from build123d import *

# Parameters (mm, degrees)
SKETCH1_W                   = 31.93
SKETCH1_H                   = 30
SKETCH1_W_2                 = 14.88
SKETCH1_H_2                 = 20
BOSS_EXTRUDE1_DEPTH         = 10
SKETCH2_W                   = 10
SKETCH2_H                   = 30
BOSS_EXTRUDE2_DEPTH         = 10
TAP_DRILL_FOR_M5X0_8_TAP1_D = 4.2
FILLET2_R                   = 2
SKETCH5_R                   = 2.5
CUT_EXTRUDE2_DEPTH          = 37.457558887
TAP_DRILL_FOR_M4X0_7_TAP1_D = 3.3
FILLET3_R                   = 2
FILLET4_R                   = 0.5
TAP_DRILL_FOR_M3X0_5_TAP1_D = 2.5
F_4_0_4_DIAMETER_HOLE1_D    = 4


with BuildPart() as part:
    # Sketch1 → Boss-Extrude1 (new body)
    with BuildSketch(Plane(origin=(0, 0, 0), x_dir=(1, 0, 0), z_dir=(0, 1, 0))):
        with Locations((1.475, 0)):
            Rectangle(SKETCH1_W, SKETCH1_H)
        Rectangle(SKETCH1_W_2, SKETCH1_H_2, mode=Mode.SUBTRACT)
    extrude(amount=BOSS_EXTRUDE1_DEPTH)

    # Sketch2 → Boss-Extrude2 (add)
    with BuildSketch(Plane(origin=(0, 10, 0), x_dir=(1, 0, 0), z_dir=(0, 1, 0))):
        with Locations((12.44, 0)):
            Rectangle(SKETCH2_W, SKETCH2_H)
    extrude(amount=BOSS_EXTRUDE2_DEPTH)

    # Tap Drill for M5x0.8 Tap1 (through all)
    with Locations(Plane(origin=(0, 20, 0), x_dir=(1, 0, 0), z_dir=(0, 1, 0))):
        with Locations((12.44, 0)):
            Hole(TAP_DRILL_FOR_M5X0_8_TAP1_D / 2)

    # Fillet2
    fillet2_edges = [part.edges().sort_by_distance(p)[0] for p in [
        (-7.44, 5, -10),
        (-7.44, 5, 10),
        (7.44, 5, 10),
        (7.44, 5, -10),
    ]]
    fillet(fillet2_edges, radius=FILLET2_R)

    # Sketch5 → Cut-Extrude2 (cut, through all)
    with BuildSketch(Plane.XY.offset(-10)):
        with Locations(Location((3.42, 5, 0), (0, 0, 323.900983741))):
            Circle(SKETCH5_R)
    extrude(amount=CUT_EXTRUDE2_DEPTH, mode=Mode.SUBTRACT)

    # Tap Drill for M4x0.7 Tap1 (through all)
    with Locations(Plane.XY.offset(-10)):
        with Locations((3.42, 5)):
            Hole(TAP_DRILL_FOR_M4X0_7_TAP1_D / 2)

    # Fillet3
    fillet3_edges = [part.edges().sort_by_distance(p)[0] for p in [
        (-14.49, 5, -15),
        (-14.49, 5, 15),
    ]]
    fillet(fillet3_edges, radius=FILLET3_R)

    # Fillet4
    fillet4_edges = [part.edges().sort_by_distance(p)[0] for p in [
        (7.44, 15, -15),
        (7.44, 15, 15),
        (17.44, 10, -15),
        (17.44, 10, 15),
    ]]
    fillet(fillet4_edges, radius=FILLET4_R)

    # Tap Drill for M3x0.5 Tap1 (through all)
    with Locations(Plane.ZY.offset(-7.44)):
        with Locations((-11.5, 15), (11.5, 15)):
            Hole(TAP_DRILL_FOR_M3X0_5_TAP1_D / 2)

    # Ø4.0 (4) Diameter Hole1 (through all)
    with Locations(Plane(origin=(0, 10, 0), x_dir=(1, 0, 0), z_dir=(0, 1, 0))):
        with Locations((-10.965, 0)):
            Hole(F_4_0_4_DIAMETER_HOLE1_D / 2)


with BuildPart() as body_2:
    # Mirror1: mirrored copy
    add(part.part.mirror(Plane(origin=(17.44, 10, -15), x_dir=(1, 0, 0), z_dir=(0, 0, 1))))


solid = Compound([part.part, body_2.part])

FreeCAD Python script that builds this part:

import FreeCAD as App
import Part
import Sketcher
from FreeCAD import Vector
Q = App.Units.Quantity


def edges_at(feature, points):
    """Names of the edges that pass closest to the given points."""
    edges = feature.Shape.Edges
    near = lambda p: min(range(len(edges)), key=lambda i: edges[i].distToShape(Part.Vertex(*p))[0])
    return sorted({f"Edge{near(p) + 1}" for p in points})

doc = App.newDocument("Part")
body = doc.addObject("PartDesign::Body", "Body")

# Sketch on XZ plane
sketch1 = body.newObject("Sketcher::SketchObject", "Sketch")
sketch1.AttachmentSupport = (doc.getObject("XZ_Plane"), [""])
sketch1.MapMode = "FlatFace"
sketch1.addGeometry([
    Part.LineSegment(Vector(-14.49, -15, 0), Vector(-14.49, 15, 0)),  # 0
    Part.LineSegment(Vector(-14.49, 15, 0), Vector(17.44, 15, 0)),  # 1
    Part.LineSegment(Vector(17.44, 15, 0), Vector(17.44, -15, 0)),  # 2
    Part.LineSegment(Vector(17.44, -15, 0), Vector(-14.49, -15, 0)),  # 3
    Part.LineSegment(Vector(7.44, 10, 0), Vector(-7.44, 10, 0)),  # 4
    Part.LineSegment(Vector(-7.44, 10, 0), Vector(-7.44, -10, 0)),  # 5
    Part.LineSegment(Vector(-7.44, -10, 0), Vector(7.44, -10, 0)),  # 6
    Part.LineSegment(Vector(7.44, -10, 0), Vector(7.44, 10, 0)),  # 7
], False)
sketch1.addConstraint([
    Sketcher.Constraint("Coincident", 0, 2, 1, 1),
    Sketcher.Constraint("Coincident", 1, 2, 2, 1),
    Sketcher.Constraint("Coincident", 2, 2, 3, 1),
    Sketcher.Constraint("Coincident", 3, 2, 0, 1),
    Sketcher.Constraint("Coincident", 4, 2, 5, 1),
    Sketcher.Constraint("Coincident", 5, 2, 6, 1),
    Sketcher.Constraint("Coincident", 6, 2, 7, 1),
    Sketcher.Constraint("Coincident", 7, 2, 4, 1),
    Sketcher.Constraint("Vertical", 0),
    Sketcher.Constraint("Horizontal", 1),
    Sketcher.Constraint("Vertical", 2),
    Sketcher.Constraint("Horizontal", 3),
    Sketcher.Constraint("Horizontal", 4),
    Sketcher.Constraint("Vertical", 5),
    Sketcher.Constraint("Horizontal", 6),
    Sketcher.Constraint("Vertical", 7),
    Sketcher.Constraint("Symmetric", 4, 2, 6, 2, -1, 1),
    Sketcher.Constraint("DistanceY", 0, 1, 0, 2, Q("30 mm")),
    Sketcher.Constraint("DistanceY", 5, 2, 5, 1, Q("20 mm")),
    Sketcher.Constraint("DistanceY", -1, 1, 0, 2, Q("15 mm")),
    Sketcher.Constraint("DistanceX", 6, 2, 2, 2, Q("10 mm")),
    Sketcher.Constraint("DistanceX", 1, 1, 1, 2, Q("31.93 mm")),
    Sketcher.Constraint("DistanceX", 4, 2, 4, 1, Q("14.88 mm")),
])
pad1 = body.newObject("PartDesign::Pad", "Pad")
pad1.Profile = sketch1
pad1.Length = 10
pad1.Reversed = True

# Sketch on XZ plane
sketch2 = body.newObject("Sketcher::SketchObject", "Sketch001")
sketch2.AttachmentSupport = (doc.getObject("XZ_Plane"), [""])
sketch2.MapMode = "FlatFace"
sketch2.AttachmentOffset = App.Placement(Vector(0, 0, -10), App.Rotation())
sketch2.addGeometry([
    Part.LineSegment(Vector(7.44, -15, 0), Vector(7.44, 15, 0)),
    Part.LineSegment(Vector(7.44, 15, 0), Vector(17.44, 15, 0)),
    Part.LineSegment(Vector(17.44, 15, 0), Vector(17.44, -15, 0)),
    Part.LineSegment(Vector(17.44, -15, 0), Vector(7.44, -15, 0)),
], False)
sketch2.addConstraint([
    Sketcher.Constraint("Coincident", 0, 2, 1, 1),
    Sketcher.Constraint("Coincident", 1, 2, 2, 1),
    Sketcher.Constraint("Coincident", 2, 2, 3, 1),
    Sketcher.Constraint("Coincident", 3, 2, 0, 1),
    Sketcher.Constraint("Vertical", 0),
    Sketcher.Constraint("Horizontal", 1),
    Sketcher.Constraint("Vertical", 2),
    Sketcher.Constraint("Horizontal", 3),
    Sketcher.Constraint("DistanceX", 1, 1, 1, 2, Q("10 mm")),
    Sketcher.Constraint("DistanceY", 0, 1, 0, 2, Q("30 mm")),
    Sketcher.Constraint("DistanceY", -1, 1, 0, 2, Q("15 mm")),
    Sketcher.Constraint("DistanceX", -1, 1, 0, 2, Q("7.44 mm")),
])
pad2 = body.newObject("PartDesign::Pad", "Pad001")
pad2.Profile = sketch2
pad2.Length = 10
pad2.Reversed = True

# Sketch on XZ plane
sketch3 = body.newObject("Sketcher::SketchObject", "Sketch002")
sketch3.AttachmentSupport = (doc.getObject("XZ_Plane"), [""])
sketch3.MapMode = "FlatFace"
sketch3.AttachmentOffset = App.Placement(Vector(0, 0, -20), App.Rotation())
sketch3.addGeometry(Part.Circle(Vector(12.44, 0, 0), Vector(0, 0, 1), 2.1), False)
sketch3.addConstraint([
    Sketcher.Constraint("PointOnObject", 0, 3, -1),
    Sketcher.Constraint("Diameter", 0, Q("4.2 mm")),
    Sketcher.Constraint("DistanceX", -1, 1, 0, 3, Q("12.44 mm")),
])
doc.recompute()
hole = body.newObject("PartDesign::Hole", "Hole")
hole.Profile = sketch3
hole.ThreadType = "None"
hole.Diameter = 4.2
hole.DepthType = "ThroughAll"
hole.Reversed = True
doc.recompute()

fillet = body.newObject("PartDesign::Fillet", "Fillet")
fillet.Base = (hole, edges_at(hole, [
    (-7.44, 5, -10),
    (-7.44, 5, 10),
    (7.44, 5, 10),
    (7.44, 5, -10),
]))
fillet.Radius = 2

# Sketch on XY plane
sketch4 = body.newObject("Sketcher::SketchObject", "Sketch003")
sketch4.AttachmentSupport = (doc.getObject("XY_Plane"), [""])
sketch4.MapMode = "FlatFace"
sketch4.AttachmentOffset = App.Placement(Vector(0, 0, -10), App.Rotation())
sketch4.addGeometry(Part.Circle(Vector(3.42, 5, 0), Vector(0, 0, 1), 2.5), False)
sketch4.addConstraint([
    Sketcher.Constraint("Diameter", 0, Q("5 mm")),
    Sketcher.Constraint("DistanceY", -1, 1, 0, 3, Q("5 mm")),
    Sketcher.Constraint("DistanceX", -1, 1, 0, 3, Q("3.42 mm")),
])
pocket1 = body.newObject("PartDesign::Pocket", "Pocket")
pocket1.Profile = sketch4
pocket1.Type = "ThroughAll"
pocket1.Reversed = True

# Sketch on XY plane
sketch5 = body.newObject("Sketcher::SketchObject", "Sketch004")
sketch5.AttachmentSupport = (doc.getObject("XY_Plane"), [""])
sketch5.MapMode = "FlatFace"
sketch5.AttachmentOffset = App.Placement(Vector(0, 0, -10), App.Rotation())
sketch5.addGeometry(Part.Circle(Vector(3.42, 5, 0), Vector(0, 0, 1), 1.65), False)
sketch5.addConstraint([
    Sketcher.Constraint("Diameter", 0, Q("3.3 mm")),
    Sketcher.Constraint("DistanceY", -1, 1, 0, 3, Q("5 mm")),
    Sketcher.Constraint("DistanceX", -1, 1, 0, 3, Q("3.42 mm")),
])
doc.recompute()
hole2 = body.newObject("PartDesign::Hole", "Hole001")
hole2.Profile = sketch5
hole2.ThreadType = "None"
hole2.Diameter = 3.3
hole2.DepthType = "ThroughAll"
doc.recompute()

fillet2 = body.newObject("PartDesign::Fillet", "Fillet001")
fillet2.Base = (hole2, edges_at(hole2, [(-14.49, 5, -15), (-14.49, 5, 15)]))
fillet2.Radius = 2
doc.recompute()

fillet3 = body.newObject("PartDesign::Fillet", "Fillet002")
fillet3.Base = (fillet2, edges_at(fillet2, [
    (7.44, 15, -15),
    (7.44, 15, 15),
    (17.44, 10, -15),
    (17.44, 10, 15),
]))
fillet3.Radius = 0.5

# Sketch on YZ plane
sketch6 = body.newObject("Sketcher::SketchObject", "Sketch005")
sketch6.AttachmentSupport = (doc.getObject("YZ_Plane"), [""])
sketch6.MapMode = "FlatFace"
sketch6.AttachmentOffset = App.Placement(Vector(0, 0, 7.44), App.Rotation())
sketch6.addGeometry([
    Part.Circle(Vector(15, -11.5, 0), Vector(0, 0, 1), 1.25),
    Part.Circle(Vector(15, 11.5, 0), Vector(0, 0, 1), 1.25),
], False)
sketch6.addConstraint([
    Sketcher.Constraint("Equal", 0, 1),
    Sketcher.Constraint("Symmetric", 0, 3, 1, 3, -1),
    Sketcher.Constraint("Diameter", 0, Q("2.5 mm")),
    Sketcher.Constraint("DistanceX", -1, 1, 0, 3, Q("15 mm")),
    Sketcher.Constraint("DistanceY", 0, 3, 1, 3, Q("23 mm")),
])
doc.recompute()
hole3 = body.newObject("PartDesign::Hole", "Hole002")
hole3.Profile = sketch6
hole3.ThreadType = "None"
hole3.Diameter = 2.5
hole3.DepthType = "ThroughAll"
hole3.Reversed = True

# Sketch on XZ plane
sketch7 = body.newObject("Sketcher::SketchObject", "Sketch006")
sketch7.AttachmentSupport = (doc.getObject("XZ_Plane"), [""])
sketch7.MapMode = "FlatFace"
sketch7.AttachmentOffset = App.Placement(Vector(0, 0, -10), App.Rotation())
sketch7.addGeometry(Part.Circle(Vector(-10.965, 0, 0), Vector(0, 0, 1), 2), False)
sketch7.addConstraint([
    Sketcher.Constraint("PointOnObject", 0, 3, -1),
    Sketcher.Constraint("Diameter", 0, Q("4 mm")),
    Sketcher.Constraint("DistanceX", 0, 3, -1, 1, Q("10.965 mm")),
])
doc.recompute()
hole4 = body.newObject("PartDesign::Hole", "Hole003")
hole4.Profile = sketch7
hole4.ThreadType = "None"
hole4.Diameter = 4
hole4.DepthType = "ThroughAll"
hole4.Reversed = True
body2 = doc.addObject("PartDesign::Body", "Body001")
doc.recompute()

mirroring = doc.addObject("Part::Mirroring", "Mirroring")
mirroring.Source = body
mirroring.Base = Vector(17.44, 10, -15)
mirroring.Normal = Vector(0, 0, 1)
body2.BaseFeature = mirroring
doc.recompute()
mirroring.Visibility = False

doc.recompute()
